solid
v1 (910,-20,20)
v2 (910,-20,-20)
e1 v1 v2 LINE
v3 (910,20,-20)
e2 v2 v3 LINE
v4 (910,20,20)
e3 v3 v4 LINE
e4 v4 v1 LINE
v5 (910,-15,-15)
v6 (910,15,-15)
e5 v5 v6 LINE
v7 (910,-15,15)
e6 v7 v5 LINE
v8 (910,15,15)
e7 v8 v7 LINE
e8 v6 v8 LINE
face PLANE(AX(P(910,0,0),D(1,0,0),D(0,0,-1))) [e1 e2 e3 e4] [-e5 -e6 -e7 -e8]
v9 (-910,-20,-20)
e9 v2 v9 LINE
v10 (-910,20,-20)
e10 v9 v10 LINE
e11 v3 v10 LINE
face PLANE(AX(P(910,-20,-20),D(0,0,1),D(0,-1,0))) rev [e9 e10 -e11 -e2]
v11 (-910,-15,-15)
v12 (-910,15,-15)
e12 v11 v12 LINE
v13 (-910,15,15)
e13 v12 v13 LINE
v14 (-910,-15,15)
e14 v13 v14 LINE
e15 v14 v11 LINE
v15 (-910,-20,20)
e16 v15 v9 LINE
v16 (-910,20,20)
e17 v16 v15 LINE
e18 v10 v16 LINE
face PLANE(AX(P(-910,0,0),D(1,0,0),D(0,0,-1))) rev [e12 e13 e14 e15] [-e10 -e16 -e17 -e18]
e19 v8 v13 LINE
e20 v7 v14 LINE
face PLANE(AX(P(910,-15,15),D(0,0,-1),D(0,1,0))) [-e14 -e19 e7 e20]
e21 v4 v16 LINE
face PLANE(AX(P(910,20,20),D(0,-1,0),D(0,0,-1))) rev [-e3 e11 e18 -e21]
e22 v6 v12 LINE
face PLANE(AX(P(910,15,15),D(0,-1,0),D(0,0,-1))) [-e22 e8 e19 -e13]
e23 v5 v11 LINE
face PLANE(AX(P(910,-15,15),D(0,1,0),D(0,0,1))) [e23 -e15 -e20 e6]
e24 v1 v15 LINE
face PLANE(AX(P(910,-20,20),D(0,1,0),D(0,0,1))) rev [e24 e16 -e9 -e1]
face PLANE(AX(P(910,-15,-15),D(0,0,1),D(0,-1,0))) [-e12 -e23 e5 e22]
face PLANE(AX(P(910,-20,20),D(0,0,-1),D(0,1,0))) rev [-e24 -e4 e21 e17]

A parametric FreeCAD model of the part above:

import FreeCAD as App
import Part
import Sketcher
Q = App.Units.Quantity


def add_polygon(sketch, points):
    """Adds a closed chain of lines whose ends are joined by coincident constraints."""
    first, n = sketch.GeometryCount, len(points)
    for a, b in zip(points, points[1:] + points[:1]):
        sketch.addGeometry(Part.LineSegment(App.Vector(*a, 0), App.Vector(*b, 0)), False)
    for i in range(n):
        sketch.addConstraint(Sketcher.Constraint("Coincident", first + i, 2, first + (i + 1) % n, 1))

doc = App.newDocument("Part")
body = doc.addObject("PartDesign::Body", "Body")

# Sketch on YZ plane
sketch1 = body.newObject("Sketcher::SketchObject", "Sketch")
sketch1.AttachmentSupport = (doc.getObject("YZ_Plane"), [""])
sketch1.MapMode = "FlatFace"
add_polygon(sketch1, [(20, -20), (20, 20), (-20, 20), (-20, -20)])  # lines 0-3
add_polygon(sketch1, [(-15, 15), (15, 15), (15, -15), (-15, -15)])  # lines 4-7
sketch1.addConstraint([
    Sketcher.Constraint("Vertical", 0),
    Sketcher.Constraint("Horizontal", 1),
    Sketcher.Constraint("Vertical", 2),
    Sketcher.Constraint("Horizontal", 3),
    Sketcher.Constraint("Horizontal", 4),
    Sketcher.Constraint("Vertical", 5),
    Sketcher.Constraint("Horizontal", 6),
    Sketcher.Constraint("Vertical", 7),
    Sketcher.Constraint("Symmetric", 0, 2, 2, 2, -1, 1),
    Sketcher.Constraint("Symmetric", 4, 2, 6, 2, -1, 1),
    Sketcher.Constraint("Equal", 3, 0),
    Sketcher.Constraint("Equal", 6, 5),
    Sketcher.Constraint("DistanceX", 1, 2, 1, 1, Q("40 mm")),
    Sketcher.Constraint("DistanceX", 4, 1, 4, 2, Q("30 mm")),
])
pad1 = body.newObject("PartDesign::Pad", "Pad")
pad1.Profile = sketch1
pad1.Length = 1820
pad1.Midplane = True

doc.recompute()
